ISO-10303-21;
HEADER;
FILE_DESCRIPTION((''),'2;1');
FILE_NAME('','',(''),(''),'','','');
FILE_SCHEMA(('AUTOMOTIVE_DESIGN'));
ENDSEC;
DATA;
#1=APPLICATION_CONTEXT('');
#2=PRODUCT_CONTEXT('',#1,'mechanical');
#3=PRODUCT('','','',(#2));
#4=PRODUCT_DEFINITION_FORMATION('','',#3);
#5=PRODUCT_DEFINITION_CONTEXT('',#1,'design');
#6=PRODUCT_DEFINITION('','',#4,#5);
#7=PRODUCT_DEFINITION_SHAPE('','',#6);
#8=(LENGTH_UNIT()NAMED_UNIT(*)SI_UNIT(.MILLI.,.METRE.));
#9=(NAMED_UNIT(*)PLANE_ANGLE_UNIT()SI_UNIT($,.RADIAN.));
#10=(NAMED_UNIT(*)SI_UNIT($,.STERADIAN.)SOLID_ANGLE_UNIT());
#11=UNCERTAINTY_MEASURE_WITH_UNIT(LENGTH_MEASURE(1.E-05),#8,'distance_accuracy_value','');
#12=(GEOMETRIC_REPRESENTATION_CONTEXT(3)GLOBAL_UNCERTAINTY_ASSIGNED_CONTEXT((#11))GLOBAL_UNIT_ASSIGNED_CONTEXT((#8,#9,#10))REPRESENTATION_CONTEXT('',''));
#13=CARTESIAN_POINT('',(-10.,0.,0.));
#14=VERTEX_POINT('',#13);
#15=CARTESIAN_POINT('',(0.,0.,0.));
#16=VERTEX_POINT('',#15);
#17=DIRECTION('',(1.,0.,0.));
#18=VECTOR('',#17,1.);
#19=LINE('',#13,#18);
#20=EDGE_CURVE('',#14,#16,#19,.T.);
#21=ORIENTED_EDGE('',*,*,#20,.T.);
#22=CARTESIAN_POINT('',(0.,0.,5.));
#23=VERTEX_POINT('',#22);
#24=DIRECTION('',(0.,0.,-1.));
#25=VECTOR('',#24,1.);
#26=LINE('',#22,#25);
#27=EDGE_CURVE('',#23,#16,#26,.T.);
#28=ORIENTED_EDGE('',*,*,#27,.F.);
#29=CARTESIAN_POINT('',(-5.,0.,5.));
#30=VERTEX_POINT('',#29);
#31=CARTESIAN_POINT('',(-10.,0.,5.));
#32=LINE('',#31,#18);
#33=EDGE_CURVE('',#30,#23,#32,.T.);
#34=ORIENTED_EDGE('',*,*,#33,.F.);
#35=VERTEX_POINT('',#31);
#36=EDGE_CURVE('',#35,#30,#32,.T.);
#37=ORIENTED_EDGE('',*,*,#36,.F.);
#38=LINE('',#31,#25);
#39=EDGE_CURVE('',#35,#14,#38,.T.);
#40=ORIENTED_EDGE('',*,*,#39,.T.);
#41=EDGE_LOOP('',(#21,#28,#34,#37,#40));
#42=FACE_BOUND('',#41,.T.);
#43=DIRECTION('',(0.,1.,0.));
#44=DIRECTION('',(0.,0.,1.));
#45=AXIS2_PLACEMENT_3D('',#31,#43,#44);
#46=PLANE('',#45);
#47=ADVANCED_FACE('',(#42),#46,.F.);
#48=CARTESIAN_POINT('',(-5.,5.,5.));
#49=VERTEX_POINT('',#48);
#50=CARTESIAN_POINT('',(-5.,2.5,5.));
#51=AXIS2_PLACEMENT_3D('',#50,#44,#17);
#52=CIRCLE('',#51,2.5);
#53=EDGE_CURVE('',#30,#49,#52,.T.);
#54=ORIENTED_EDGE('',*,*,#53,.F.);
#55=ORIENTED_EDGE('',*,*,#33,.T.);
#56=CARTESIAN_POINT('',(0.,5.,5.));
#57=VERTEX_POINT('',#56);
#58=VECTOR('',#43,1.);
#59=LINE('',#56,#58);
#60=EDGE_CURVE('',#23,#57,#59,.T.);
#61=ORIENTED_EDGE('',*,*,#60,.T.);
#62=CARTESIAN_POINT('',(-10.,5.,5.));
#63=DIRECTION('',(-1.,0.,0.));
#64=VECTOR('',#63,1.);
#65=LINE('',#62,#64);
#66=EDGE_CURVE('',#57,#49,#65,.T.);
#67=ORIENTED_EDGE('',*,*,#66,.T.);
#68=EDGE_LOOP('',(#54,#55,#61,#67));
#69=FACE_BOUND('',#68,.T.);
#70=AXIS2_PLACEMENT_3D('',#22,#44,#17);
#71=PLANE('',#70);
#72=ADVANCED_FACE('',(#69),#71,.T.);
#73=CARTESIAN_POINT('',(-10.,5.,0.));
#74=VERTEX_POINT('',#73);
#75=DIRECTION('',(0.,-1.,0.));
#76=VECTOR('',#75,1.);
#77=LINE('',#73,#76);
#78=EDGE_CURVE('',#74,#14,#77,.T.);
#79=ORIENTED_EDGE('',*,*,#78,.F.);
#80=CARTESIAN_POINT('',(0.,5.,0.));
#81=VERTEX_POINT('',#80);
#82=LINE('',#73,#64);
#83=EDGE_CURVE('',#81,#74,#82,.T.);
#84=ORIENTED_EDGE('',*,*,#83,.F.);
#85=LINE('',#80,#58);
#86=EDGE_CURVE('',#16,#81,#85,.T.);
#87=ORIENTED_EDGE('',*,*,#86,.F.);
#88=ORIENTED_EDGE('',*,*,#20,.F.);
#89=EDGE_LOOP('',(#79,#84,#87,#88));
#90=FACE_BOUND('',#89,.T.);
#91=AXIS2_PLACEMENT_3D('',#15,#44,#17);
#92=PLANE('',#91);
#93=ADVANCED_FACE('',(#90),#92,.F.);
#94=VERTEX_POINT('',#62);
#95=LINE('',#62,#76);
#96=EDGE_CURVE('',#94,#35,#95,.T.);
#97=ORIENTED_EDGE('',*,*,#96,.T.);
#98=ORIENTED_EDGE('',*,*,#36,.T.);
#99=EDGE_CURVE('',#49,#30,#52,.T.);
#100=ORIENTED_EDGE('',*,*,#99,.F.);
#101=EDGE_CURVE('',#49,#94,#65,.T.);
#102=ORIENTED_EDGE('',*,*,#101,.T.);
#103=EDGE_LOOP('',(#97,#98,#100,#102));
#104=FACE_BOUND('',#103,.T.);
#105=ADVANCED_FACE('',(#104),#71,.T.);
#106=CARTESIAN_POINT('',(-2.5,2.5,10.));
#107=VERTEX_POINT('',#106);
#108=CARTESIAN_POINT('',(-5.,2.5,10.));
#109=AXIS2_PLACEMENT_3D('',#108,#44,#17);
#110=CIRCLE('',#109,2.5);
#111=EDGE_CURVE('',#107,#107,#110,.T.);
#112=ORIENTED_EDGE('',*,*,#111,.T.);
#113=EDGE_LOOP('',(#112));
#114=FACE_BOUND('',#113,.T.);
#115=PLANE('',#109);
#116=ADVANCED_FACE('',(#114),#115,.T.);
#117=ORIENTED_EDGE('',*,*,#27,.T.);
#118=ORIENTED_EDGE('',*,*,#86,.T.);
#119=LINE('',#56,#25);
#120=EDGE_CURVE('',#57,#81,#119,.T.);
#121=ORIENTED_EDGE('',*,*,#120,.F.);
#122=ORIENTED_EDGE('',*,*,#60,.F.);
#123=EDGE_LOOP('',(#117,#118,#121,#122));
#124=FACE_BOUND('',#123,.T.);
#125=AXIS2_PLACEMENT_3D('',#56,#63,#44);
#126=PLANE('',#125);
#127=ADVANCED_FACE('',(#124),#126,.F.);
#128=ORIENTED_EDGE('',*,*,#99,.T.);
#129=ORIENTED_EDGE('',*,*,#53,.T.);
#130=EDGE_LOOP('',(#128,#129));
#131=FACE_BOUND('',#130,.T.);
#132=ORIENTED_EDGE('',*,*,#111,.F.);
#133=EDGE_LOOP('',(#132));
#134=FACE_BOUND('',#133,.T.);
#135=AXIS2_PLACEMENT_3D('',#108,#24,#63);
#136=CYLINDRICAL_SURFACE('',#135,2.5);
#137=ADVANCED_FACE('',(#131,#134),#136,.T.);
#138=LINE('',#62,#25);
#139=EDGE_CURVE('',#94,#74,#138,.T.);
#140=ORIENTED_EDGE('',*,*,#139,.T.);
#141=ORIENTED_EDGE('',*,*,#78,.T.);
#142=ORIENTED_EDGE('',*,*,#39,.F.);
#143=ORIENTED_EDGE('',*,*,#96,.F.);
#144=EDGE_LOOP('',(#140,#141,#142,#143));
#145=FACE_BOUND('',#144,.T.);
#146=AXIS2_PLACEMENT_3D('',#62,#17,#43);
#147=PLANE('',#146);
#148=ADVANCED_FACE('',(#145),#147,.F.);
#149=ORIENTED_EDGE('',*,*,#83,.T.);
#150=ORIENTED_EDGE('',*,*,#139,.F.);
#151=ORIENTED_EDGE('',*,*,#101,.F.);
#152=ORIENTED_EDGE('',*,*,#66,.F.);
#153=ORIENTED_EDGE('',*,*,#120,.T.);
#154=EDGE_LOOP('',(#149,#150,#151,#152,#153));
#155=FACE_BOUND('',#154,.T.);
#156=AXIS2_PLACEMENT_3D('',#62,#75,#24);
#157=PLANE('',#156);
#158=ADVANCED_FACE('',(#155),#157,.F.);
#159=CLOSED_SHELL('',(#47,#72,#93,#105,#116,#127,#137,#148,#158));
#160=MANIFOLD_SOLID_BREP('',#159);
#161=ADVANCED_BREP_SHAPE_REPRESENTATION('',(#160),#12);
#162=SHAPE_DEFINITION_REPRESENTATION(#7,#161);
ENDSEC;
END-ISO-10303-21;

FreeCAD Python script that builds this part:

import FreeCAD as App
import Part
import Sketcher

V = App.Vector
Q = App.Units.Quantity


def add_polygon(sketch, points):
    """Adds a closed chain of lines whose ends are joined by coincident constraints."""
    first, n = sketch.GeometryCount, len(points)
    for a, b in zip(points, points[1:] + points[:1]):
        sketch.addGeometry(Part.LineSegment(App.Vector(*a, 0), App.Vector(*b, 0)), False)
    for i in range(n):
        sketch.addConstraint(Sketcher.Constraint("Coincident", first + i, 2, first + (i + 1) % n, 1))

doc = App.newDocument("Part")
params = doc.addObject("Spreadsheet::Sheet", "Params")
for row, (alias, value) in enumerate([
    ("sketch1_width", "10 mm"),
    ("sketch1_height", "5 mm"),
    ("pad1_length", "5 mm"),
    ("sketch2_diameter", "5 mm"),
    ("pad2_length", "5 mm"),
], start=1):
    params.set(f"A{row}", alias)
    params.set(f"B{row}", "=" + value)
    params.setAlias(f"B{row}", alias)

body = doc.addObject("PartDesign::Body", "Body")

sketch1 = body.newObject("Sketcher::SketchObject", "Sketch")
sketch1.AttachmentSupport = (doc.getObject("XY_Plane"), [""])
sketch1.MapMode = "FlatFace"
add_polygon(sketch1, [(-10, 5), (-10, 0), (0, 0), (0, 5)])
sketch1.addConstraint(Sketcher.Constraint("Vertical", 0))
sketch1.addConstraint(Sketcher.Constraint("Horizontal", 1))
sketch1.addConstraint(Sketcher.Constraint("Vertical", 2))
sketch1.addConstraint(Sketcher.Constraint("Horizontal", 3))
sketch1.addConstraint(Sketcher.Constraint("Coincident", 1, 2, -1, 1))
sketch1.addConstraint(Sketcher.Constraint("DistanceX", 1, 1, 1, 2, Q("10 mm")))
sketch1.addConstraint(Sketcher.Constraint("DistanceY", 0, 2, 0, 1, Q("5 mm")))
sketch1.setExpression("Constraints[9]", "Params.sketch1_width")
sketch1.setExpression("Constraints[10]", "Params.sketch1_height")
pad1 = body.newObject("PartDesign::Pad", "Pad")
pad1.Profile = sketch1
pad1.setExpression("Length", "Params.pad1_length")

sketch2 = body.newObject("Sketcher::SketchObject", "Sketch001")
sketch2.AttachmentSupport = (doc.getObject("XY_Plane"), [""])
sketch2.MapMode = "FlatFace"
sketch2.AttachmentOffset = App.Placement(V(0, 0, 5), App.Rotation())
sketch2.addGeometry(Part.Circle(V(-5, 2.5, 0), V(0, 0, 1), 2.5), False)
sketch2.addConstraint(Sketcher.Constraint("Diameter", 0, Q("5 mm")))
sketch2.addConstraint(Sketcher.Constraint("DistanceX", 0, 3, -1, 1, Q("5 mm")))
sketch2.addConstraint(Sketcher.Constraint("DistanceY", -1, 1, 0, 3, Q("2.5 mm")))
sketch2.setExpression("Constraints[0]", "Params.sketch2_diameter")
pad2 = body.newObject("PartDesign::Pad", "Pad001")
pad2.Profile = sketch2
pad2.setExpression("Length", "Params.pad2_length")

doc.recompute()
